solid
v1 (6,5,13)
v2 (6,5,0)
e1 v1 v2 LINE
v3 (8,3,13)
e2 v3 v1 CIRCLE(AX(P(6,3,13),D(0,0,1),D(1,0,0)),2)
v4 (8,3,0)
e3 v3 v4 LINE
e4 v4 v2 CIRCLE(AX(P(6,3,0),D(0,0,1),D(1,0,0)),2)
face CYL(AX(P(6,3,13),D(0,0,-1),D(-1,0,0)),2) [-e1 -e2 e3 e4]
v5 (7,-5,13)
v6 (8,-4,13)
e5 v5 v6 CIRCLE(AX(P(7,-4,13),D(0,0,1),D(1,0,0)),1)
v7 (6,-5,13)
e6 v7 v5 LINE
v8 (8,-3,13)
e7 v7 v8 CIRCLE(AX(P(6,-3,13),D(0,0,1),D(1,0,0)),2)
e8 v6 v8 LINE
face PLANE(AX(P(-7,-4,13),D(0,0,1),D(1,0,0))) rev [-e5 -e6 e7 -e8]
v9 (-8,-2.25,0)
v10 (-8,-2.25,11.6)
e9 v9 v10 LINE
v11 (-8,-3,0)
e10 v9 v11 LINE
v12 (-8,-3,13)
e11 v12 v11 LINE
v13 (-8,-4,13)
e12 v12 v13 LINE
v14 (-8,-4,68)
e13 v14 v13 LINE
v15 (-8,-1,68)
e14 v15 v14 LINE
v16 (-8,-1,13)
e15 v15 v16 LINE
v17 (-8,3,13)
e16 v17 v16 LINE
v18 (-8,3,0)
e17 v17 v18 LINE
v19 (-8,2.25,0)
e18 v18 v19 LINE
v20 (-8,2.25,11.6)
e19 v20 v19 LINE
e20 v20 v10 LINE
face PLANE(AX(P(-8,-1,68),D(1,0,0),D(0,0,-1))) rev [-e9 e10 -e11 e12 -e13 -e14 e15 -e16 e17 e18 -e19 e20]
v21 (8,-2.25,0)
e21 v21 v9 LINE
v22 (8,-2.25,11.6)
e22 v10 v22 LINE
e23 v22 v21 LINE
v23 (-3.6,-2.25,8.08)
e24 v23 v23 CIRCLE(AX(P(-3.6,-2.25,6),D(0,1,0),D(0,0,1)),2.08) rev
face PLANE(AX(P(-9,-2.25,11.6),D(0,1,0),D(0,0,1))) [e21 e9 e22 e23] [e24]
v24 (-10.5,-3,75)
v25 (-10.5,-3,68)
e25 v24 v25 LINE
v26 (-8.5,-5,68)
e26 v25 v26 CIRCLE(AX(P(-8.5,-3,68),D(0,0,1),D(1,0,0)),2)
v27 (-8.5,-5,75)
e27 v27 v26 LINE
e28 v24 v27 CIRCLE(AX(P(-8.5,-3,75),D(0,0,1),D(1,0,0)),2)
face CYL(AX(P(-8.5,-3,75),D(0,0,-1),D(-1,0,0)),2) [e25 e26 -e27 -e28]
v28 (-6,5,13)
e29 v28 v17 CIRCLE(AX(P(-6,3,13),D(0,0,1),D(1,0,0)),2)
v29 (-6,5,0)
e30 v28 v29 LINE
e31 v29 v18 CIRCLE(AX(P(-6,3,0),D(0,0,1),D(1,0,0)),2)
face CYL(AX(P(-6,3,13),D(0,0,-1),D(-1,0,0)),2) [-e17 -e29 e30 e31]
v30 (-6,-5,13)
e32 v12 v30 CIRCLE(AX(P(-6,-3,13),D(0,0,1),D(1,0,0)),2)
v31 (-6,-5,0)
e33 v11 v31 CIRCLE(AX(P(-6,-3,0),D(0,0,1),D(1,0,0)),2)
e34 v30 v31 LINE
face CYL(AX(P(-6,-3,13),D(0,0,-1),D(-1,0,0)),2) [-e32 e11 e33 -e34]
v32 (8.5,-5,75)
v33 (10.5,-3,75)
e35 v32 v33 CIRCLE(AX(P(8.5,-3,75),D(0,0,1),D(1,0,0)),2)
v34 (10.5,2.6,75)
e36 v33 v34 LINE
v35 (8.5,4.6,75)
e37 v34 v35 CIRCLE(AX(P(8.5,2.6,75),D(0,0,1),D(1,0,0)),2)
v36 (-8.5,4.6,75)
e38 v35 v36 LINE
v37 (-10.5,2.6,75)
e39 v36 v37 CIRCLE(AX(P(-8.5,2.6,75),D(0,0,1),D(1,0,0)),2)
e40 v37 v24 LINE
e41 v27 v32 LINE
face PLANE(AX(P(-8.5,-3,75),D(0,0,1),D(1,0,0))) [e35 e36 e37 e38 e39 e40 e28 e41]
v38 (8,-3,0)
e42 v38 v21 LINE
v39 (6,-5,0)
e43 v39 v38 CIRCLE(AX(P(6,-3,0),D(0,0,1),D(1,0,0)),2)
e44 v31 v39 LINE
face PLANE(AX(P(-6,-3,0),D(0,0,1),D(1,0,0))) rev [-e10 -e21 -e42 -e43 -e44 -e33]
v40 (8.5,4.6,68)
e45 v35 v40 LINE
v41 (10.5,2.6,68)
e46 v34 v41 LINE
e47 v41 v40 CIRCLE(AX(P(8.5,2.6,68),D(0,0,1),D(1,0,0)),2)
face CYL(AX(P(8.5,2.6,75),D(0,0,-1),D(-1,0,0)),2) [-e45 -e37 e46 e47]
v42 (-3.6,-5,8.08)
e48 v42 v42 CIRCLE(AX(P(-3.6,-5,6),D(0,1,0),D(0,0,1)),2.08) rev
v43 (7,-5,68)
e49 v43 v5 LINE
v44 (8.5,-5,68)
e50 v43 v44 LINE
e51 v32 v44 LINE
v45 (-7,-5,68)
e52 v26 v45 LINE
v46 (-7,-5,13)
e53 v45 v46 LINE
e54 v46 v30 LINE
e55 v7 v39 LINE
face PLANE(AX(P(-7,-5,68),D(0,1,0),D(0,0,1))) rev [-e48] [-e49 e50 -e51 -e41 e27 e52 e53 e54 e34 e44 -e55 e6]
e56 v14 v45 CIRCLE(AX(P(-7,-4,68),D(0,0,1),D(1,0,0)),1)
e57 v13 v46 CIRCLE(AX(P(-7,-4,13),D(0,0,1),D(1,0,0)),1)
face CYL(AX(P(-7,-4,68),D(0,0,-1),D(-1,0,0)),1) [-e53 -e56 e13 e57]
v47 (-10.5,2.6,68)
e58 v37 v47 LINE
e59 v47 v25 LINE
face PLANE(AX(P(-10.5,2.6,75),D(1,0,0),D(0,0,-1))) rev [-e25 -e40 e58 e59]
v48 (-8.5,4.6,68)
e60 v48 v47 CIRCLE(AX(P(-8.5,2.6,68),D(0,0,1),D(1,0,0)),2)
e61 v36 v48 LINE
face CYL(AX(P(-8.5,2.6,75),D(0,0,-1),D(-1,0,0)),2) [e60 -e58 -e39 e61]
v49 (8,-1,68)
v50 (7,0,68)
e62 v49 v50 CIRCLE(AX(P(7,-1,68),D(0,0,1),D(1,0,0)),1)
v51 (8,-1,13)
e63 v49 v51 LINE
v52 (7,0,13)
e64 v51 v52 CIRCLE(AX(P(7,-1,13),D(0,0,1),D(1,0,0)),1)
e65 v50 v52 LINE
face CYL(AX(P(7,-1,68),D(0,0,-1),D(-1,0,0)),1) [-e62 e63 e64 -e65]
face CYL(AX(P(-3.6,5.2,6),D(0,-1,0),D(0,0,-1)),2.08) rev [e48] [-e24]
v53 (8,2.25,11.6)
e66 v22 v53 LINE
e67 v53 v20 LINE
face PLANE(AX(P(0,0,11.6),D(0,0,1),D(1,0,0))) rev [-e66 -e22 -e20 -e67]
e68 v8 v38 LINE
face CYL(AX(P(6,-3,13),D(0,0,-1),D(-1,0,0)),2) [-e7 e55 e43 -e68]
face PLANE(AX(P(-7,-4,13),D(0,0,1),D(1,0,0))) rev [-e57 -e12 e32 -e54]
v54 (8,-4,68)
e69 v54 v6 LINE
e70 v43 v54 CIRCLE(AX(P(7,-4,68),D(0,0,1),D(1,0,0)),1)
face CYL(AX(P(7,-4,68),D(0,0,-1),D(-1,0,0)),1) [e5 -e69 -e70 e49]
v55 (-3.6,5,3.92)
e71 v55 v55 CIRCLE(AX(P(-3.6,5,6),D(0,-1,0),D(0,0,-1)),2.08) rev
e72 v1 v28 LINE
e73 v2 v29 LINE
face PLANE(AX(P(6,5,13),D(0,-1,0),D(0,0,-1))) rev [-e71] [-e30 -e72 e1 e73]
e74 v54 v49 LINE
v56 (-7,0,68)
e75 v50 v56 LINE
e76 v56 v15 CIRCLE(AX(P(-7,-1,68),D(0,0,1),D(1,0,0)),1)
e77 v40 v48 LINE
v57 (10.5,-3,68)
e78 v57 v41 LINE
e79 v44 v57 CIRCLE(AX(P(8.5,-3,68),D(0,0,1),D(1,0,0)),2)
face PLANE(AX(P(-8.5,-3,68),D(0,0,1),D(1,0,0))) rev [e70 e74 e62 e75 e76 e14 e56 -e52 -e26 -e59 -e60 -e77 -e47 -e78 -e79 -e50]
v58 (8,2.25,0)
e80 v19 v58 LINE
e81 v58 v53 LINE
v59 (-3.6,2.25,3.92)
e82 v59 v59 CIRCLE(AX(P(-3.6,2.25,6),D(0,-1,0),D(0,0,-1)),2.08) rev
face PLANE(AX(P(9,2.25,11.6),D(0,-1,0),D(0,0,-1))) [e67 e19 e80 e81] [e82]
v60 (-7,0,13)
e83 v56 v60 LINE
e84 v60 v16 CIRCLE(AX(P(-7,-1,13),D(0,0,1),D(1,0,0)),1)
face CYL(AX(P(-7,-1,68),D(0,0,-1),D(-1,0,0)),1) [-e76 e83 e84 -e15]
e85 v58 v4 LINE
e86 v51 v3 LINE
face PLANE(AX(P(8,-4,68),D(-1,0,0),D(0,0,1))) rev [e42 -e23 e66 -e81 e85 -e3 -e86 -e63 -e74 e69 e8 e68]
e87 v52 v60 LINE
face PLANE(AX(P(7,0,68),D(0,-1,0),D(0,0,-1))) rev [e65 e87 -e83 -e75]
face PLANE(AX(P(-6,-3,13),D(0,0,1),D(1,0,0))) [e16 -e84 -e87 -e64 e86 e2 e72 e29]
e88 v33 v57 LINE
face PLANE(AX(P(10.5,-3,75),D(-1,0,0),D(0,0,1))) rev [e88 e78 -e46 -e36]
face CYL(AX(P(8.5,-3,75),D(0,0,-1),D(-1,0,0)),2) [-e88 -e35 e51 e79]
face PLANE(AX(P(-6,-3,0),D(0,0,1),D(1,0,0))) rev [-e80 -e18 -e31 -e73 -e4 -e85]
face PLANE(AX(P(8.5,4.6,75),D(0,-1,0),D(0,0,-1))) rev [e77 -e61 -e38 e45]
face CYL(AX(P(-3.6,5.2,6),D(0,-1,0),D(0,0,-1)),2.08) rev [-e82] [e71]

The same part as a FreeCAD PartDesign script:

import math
import FreeCAD as App
import Part
import Sketcher
from FreeCAD import Vector

doc = App.newDocument("Part")
params = doc.addObject("Spreadsheet::Sheet", "Params")
for row, (alias, value) in enumerate([
    ("sketch1_radius", "1 mm"),
    ("sketch1_width", "14 mm"),
    ("sketch1_height", "3 mm"),
    ("pad1_length", "55 mm"),
    ("sketch2_radius", "2 mm"),
    ("sketch2_width", "12 mm"),
    ("sketch2_height", "6 mm"),
    ("pad2_length", "13 mm"),
    ("sketch3_radius", "2 mm"),
    ("sketch3_width", "17 mm"),
    ("sketch3_height", "5.6 mm"),
    ("pad3_length", "7 mm"),
    ("sketch4_width", "18 mm"),
    ("sketch4_height", "4.5 mm"),
    ("pocket1_length", "11.8 mm"),
    ("sketch5_diameter", "4.16 mm"),
    ("pocket2_length", "10.4 mm"),
], start=1):
    params.set(f"A{row}", alias)
    params.set(f"B{row}", "=" + value)
    params.setAlias(f"B{row}", alias)

body = doc.addObject("PartDesign::Body", "Body")

sketch1 = body.newObject("Sketcher::SketchObject", "Sketch")
sketch1.AttachmentSupport = (doc.getObject("XY_Plane"), [""])
sketch1.MapMode = "FlatFace"
sketch1.AttachmentOffset = App.Placement(Vector(0, 0, 13), App.Rotation())
sketch1.addGeometry(Part.LineSegment(Vector(-7, -5, 0), Vector(7, -5, 0)), False)
sketch1.addGeometry(Part.ArcOfCircle(Part.Circle(Vector(7, -4, 0), Vector(0, 0, 1), 1), math.radians(-90), math.radians(0)), False)
sketch1.addGeometry(Part.LineSegment(Vector(8, -4, 0), Vector(8, -1, 0)), False)
sketch1.addGeometry(Part.ArcOfCircle(Part.Circle(Vector(7, -1, 0), Vector(0, 0, 1), 1), math.radians(0), math.radians(90)), False)
sketch1.addGeometry(Part.LineSegment(Vector(7, 0, 0), Vector(-7, 0, 0)), False)
sketch1.addGeometry(Part.ArcOfCircle(Part.Circle(Vector(-7, -1, 0), Vector(0, 0, 1), 1), math.radians(90), math.radians(180)), False)
sketch1.addGeometry(Part.LineSegment(Vector(-8, -1, 0), Vector(-8, -4, 0)), False)
sketch1.addGeometry(Part.ArcOfCircle(Part.Circle(Vector(-7, -4, 0), Vector(0, 0, 1), 1), math.radians(-180), math.radians(-90)), False)
sketch1.addConstraint(Sketcher.Constraint("Tangent", 0, 2, 1, 1))
sketch1.addConstraint(Sketcher.Constraint("Tangent", 1, 2, 2, 1))
sketch1.addConstraint(Sketcher.Constraint("Tangent", 2, 2, 3, 1))
sketch1.addConstraint(Sketcher.Constraint("Tangent", 3, 2, 4, 1))
sketch1.addConstraint(Sketcher.Constraint("Tangent", 4, 2, 5, 1))
sketch1.addConstraint(Sketcher.Constraint("Tangent", 5, 2, 6, 1))
sketch1.addConstraint(Sketcher.Constraint("Tangent", 6, 2, 7, 1))
sketch1.addConstraint(Sketcher.Constraint("Tangent", 7, 2, 0, 1))
sketch1.addConstraint(Sketcher.Constraint("Horizontal", 0))
sketch1.addConstraint(Sketcher.Constraint("Vertical", 2))
sketch1.addConstraint(Sketcher.Constraint("Horizontal", 4))
sketch1.addConstraint(Sketcher.Constraint("Vertical", 6))
sketch1.addConstraint(Sketcher.Constraint("Equal", 1, 3))
sketch1.addConstraint(Sketcher.Constraint("Equal", 3, 5))
sketch1.addConstraint(Sketcher.Constraint("Equal", 5, 7))
sketch1.addConstraint(Sketcher.Constraint("Symmetric", 3, 2, 4, 2, -1, 1))
sketch1.addConstraint(Sketcher.Constraint("Radius", 1, 1.0))
sketch1.addConstraint(Sketcher.Constraint("DistanceX", 0, 1, 0, 2, 14.0))
sketch1.addConstraint(Sketcher.Constraint("DistanceY", 2, 1, 2, 2, 3.0))
sketch1.setExpression("Constraints[16]", "Params.sketch1_radius")
sketch1.setExpression("Constraints[17]", "Params.sketch1_width")
sketch1.setExpression("Constraints[18]", "Params.sketch1_height")
pad1 = body.newObject("PartDesign::Pad", "Pad")
pad1.Profile = sketch1
pad1.setExpression("Length", "Params.pad1_length")

sketch2 = body.newObject("Sketcher::SketchObject", "Sketch001")
sketch2.AttachmentSupport = (doc.getObject("XY_Plane"), [""])
sketch2.MapMode = "FlatFace"
sketch2.addGeometry(Part.LineSegment(Vector(-6, -5, 0), Vector(6, -5, 0)), False)
sketch2.addGeometry(Part.ArcOfCircle(Part.Circle(Vector(6, -3, 0), Vector(0, 0, 1), 2), math.radians(-90), math.radians(0)), False)
sketch2.addGeometry(Part.LineSegment(Vector(8, -3, 0), Vector(8, 3, 0)), False)
sketch2.addGeometry(Part.ArcOfCircle(Part.Circle(Vector(6, 3, 0), Vector(0, 0, 1), 2), math.radians(0), math.radians(90)), False)
sketch2.addGeometry(Part.LineSegment(Vector(6, 5, 0), Vector(-6, 5, 0)), False)
sketch2.addGeometry(Part.ArcOfCircle(Part.Circle(Vector(-6, 3, 0), Vector(0, 0, 1), 2), math.radians(90), math.radians(180)), False)
sketch2.addGeometry(Part.LineSegment(Vector(-8, 3, 0), Vector(-8, -3, 0)), False)
sketch2.addGeometry(Part.ArcOfCircle(Part.Circle(Vector(-6, -3, 0), Vector(0, 0, 1), 2), math.radians(-180), math.radians(-90)), False)
sketch2.addConstraint(Sketcher.Constraint("Tangent", 0, 2, 1, 1))
sketch2.addConstraint(Sketcher.Constraint("Tangent", 1, 2, 2, 1))
sketch2.addConstraint(Sketcher.Constraint("Tangent", 2, 2, 3, 1))
sketch2.addConstraint(Sketcher.Constraint("Tangent", 3, 2, 4, 1))
sketch2.addConstraint(Sketcher.Constraint("Tangent", 4, 2, 5, 1))
sketch2.addConstraint(Sketcher.Constraint("Tangent", 5, 2, 6, 1))
sketch2.addConstraint(Sketcher.Constraint("Tangent", 6, 2, 7, 1))
sketch2.addConstraint(Sketcher.Constraint("Tangent", 7, 2, 0, 1))
sketch2.addConstraint(Sketcher.Constraint("Horizontal", 0))
sketch2.addConstraint(Sketcher.Constraint("Vertical", 2))
sketch2.addConstraint(Sketcher.Constraint("Horizontal", 4))
sketch2.addConstraint(Sketcher.Constraint("Vertical", 6))
sketch2.addConstraint(Sketcher.Constraint("Equal", 1, 3))
sketch2.addConstraint(Sketcher.Constraint("Equal", 3, 5))
sketch2.addConstraint(Sketcher.Constraint("Equal", 5, 7))
sketch2.addConstraint(Sketcher.Constraint("Symmetric", 1, 3, 5, 3, -1, 1))
sketch2.addConstraint(Sketcher.Constraint("Radius", 1, 2.0))
sketch2.addConstraint(Sketcher.Constraint("DistanceX", 0, 1, 0, 2, 12.0))
sketch2.addConstraint(Sketcher.Constraint("DistanceY", 2, 1, 2, 2, 6.0))
sketch2.setExpression("Constraints[16]", "Params.sketch2_radius")
sketch2.setExpression("Constraints[17]", "Params.sketch2_width")
sketch2.setExpression("Constraints[18]", "Params.sketch2_height")
pad2 = body.newObject("PartDesign::Pad", "Pad001")
pad2.Profile = sketch2
pad2.setExpression("Length", "Params.pad2_length")

sketch3 = body.newObject("Sketcher::SketchObject", "Sketch002")
sketch3.AttachmentSupport = (doc.getObject("XY_Plane"), [""])
sketch3.MapMode = "FlatFace"
sketch3.AttachmentOffset = App.Placement(Vector(0, 0, 68), App.Rotation())
sketch3.addGeometry(Part.LineSegment(Vector(-8.5, -5, 0), Vector(8.5, -5, 0)), False)
sketch3.addGeometry(Part.ArcOfCircle(Part.Circle(Vector(8.5, -3, 0), Vector(0, 0, 1), 2), math.radians(-90), math.radians(0)), False)
sketch3.addGeometry(Part.LineSegment(Vector(10.5, -3, 0), Vector(10.5, 2.6, 0)), False)
sketch3.addGeometry(Part.ArcOfCircle(Part.Circle(Vector(8.5, 2.6, 0), Vector(0, 0, 1), 2), math.radians(0), math.radians(90)), False)
sketch3.addGeometry(Part.LineSegment(Vector(8.5, 4.6, 0), Vector(-8.5, 4.6, 0)), False)
sketch3.addGeometry(Part.ArcOfCircle(Part.Circle(Vector(-8.5, 2.6, 0), Vector(0, 0, 1), 2), math.radians(90), math.radians(180)), False)
sketch3.addGeometry(Part.LineSegment(Vector(-10.5, 2.6, 0), Vector(-10.5, -3, 0)), False)
sketch3.addGeometry(Part.ArcOfCircle(Part.Circle(Vector(-8.5, -3, 0), Vector(0, 0, 1), 2), math.radians(-180), math.radians(-90)), False)
sketch3.addConstraint(Sketcher.Constraint("Tangent", 0, 2, 1, 1))
sketch3.addConstraint(Sketcher.Constraint("Tangent", 1, 2, 2, 1))
sketch3.addConstraint(Sketcher.Constraint("Tangent", 2, 2, 3, 1))
sketch3.addConstraint(Sketcher.Constraint("Tangent", 3, 2, 4, 1))
sketch3.addConstraint(Sketcher.Constraint("Tangent", 4, 2, 5, 1))
sketch3.addConstraint(Sketcher.Constraint("Tangent", 5, 2, 6, 1))
sketch3.addConstraint(Sketcher.Constraint("Tangent", 6, 2, 7, 1))
sketch3.addConstraint(Sketcher.Constraint("Tangent", 7, 2, 0, 1))
sketch3.addConstraint(Sketcher.Constraint("Horizontal", 0))
sketch3.addConstraint(Sketcher.Constraint("Vertical", 2))
sketch3.addConstraint(Sketcher.Constraint("Horizontal", 4))
sketch3.addConstraint(Sketcher.Constraint("Vertical", 6))
sketch3.addConstraint(Sketcher.Constraint("Equal", 1, 3))
sketch3.addConstraint(Sketcher.Constraint("Equal", 3, 5))
sketch3.addConstraint(Sketcher.Constraint("Equal", 5, 7))
sketch3.addConstraint(Sketcher.Constraint("Radius", 1, 2.0))
sketch3.addConstraint(Sketcher.Constraint("DistanceX", 0, 1, 0, 2, 17.0))
sketch3.addConstraint(Sketcher.Constraint("DistanceY", 2, 1, 2, 2, 5.6))
sketch3.addConstraint(Sketcher.Constraint("DistanceY", 1, 3, -1, 1, 3.0))
sketch3.addConstraint(Sketcher.Constraint("DistanceX", -1, 1, 1, 3, 8.5))
sketch3.setExpression("Constraints[15]", "Params.sketch3_radius")
sketch3.setExpression("Constraints[16]", "Params.sketch3_width")
sketch3.setExpression("Constraints[17]", "Params.sketch3_height")
pad3 = body.newObject("PartDesign::Pad", "Pad002")
pad3.Profile = sketch3
pad3.setExpression("Length", "Params.pad3_length")

sketch4 = body.newObject("Sketcher::SketchObject", "Sketch003")
sketch4.AttachmentSupport = (doc.getObject("XY_Plane"), [""])
sketch4.MapMode = "FlatFace"
sketch4.AttachmentOffset = App.Placement(Vector(0, 0, -0.2), App.Rotation())
sketch4.addGeometry(Part.LineSegment(Vector(-9, 2.2, 0), Vector(-9, -2.2, 0)), False)
sketch4.addGeometry(Part.LineSegment(Vector(-9, -2.2, 0), Vector(9, -2.2, 0)), False)
sketch4.addGeometry(Part.LineSegment(Vector(9, -2.2, 0), Vector(9, 2.2, 0)), False)
sketch4.addGeometry(Part.LineSegment(Vector(9, 2.2, 0), Vector(-9, 2.2, 0)), False)
sketch4.addConstraint(Sketcher.Constraint("Coincident", 0, 2, 1, 1))
sketch4.addConstraint(Sketcher.Constraint("Coincident", 1, 2, 2, 1))
sketch4.addConstraint(Sketcher.Constraint("Coincident", 2, 2, 3, 1))
sketch4.addConstraint(Sketcher.Constraint("Coincident", 3, 2, 0, 1))
sketch4.addConstraint(Sketcher.Constraint("Vertical", 0))
sketch4.addConstraint(Sketcher.Constraint("Horizontal", 1))
sketch4.addConstraint(Sketcher.Constraint("Vertical", 2))
sketch4.addConstraint(Sketcher.Constraint("Horizontal", 3))
sketch4.addConstraint(Sketcher.Constraint("Symmetric", 0, 2, 2, 2, -1, 1))
sketch4.addConstraint(Sketcher.Constraint("DistanceX", 1, 1, 1, 2, 18.0))
sketch4.addConstraint(Sketcher.Constraint("DistanceY", 0, 2, 0, 1, 4.5))
sketch4.setExpression("Constraints[9]", "Params.sketch4_width")
sketch4.setExpression("Constraints[10]", "Params.sketch4_height")
pocket1 = body.newObject("PartDesign::Pocket", "Pocket")
pocket1.Profile = sketch4
pocket1.setExpression("Length", "Params.pocket1_length")
pocket1.Reversed = True

sketch5 = body.newObject("Sketcher::SketchObject", "Sketch004")
sketch5.AttachmentSupport = (doc.getObject("XZ_Plane"), [""])
sketch5.MapMode = "FlatFace"
sketch5.AttachmentOffset = App.Placement(Vector(0, 0, 5.2), App.Rotation())
sketch5.addGeometry(Part.Circle(Vector(-3.6, 6, 0), Vector(0, 0, 1), 2.1), False)
sketch5.addConstraint(Sketcher.Constraint("Diameter", 0, 4.16))
sketch5.addConstraint(Sketcher.Constraint("DistanceY", -1, 1, 0, 3, 6.0))
sketch5.addConstraint(Sketcher.Constraint("DistanceX", 0, 3, -1, 1, 3.6))
sketch5.setExpression("Constraints[0]", "Params.sketch5_diameter")
pocket2 = body.newObject("PartDesign::Pocket", "Pocket001")
pocket2.Profile = sketch5
pocket2.setExpression("Length", "Params.pocket2_length")

doc.recompute()
